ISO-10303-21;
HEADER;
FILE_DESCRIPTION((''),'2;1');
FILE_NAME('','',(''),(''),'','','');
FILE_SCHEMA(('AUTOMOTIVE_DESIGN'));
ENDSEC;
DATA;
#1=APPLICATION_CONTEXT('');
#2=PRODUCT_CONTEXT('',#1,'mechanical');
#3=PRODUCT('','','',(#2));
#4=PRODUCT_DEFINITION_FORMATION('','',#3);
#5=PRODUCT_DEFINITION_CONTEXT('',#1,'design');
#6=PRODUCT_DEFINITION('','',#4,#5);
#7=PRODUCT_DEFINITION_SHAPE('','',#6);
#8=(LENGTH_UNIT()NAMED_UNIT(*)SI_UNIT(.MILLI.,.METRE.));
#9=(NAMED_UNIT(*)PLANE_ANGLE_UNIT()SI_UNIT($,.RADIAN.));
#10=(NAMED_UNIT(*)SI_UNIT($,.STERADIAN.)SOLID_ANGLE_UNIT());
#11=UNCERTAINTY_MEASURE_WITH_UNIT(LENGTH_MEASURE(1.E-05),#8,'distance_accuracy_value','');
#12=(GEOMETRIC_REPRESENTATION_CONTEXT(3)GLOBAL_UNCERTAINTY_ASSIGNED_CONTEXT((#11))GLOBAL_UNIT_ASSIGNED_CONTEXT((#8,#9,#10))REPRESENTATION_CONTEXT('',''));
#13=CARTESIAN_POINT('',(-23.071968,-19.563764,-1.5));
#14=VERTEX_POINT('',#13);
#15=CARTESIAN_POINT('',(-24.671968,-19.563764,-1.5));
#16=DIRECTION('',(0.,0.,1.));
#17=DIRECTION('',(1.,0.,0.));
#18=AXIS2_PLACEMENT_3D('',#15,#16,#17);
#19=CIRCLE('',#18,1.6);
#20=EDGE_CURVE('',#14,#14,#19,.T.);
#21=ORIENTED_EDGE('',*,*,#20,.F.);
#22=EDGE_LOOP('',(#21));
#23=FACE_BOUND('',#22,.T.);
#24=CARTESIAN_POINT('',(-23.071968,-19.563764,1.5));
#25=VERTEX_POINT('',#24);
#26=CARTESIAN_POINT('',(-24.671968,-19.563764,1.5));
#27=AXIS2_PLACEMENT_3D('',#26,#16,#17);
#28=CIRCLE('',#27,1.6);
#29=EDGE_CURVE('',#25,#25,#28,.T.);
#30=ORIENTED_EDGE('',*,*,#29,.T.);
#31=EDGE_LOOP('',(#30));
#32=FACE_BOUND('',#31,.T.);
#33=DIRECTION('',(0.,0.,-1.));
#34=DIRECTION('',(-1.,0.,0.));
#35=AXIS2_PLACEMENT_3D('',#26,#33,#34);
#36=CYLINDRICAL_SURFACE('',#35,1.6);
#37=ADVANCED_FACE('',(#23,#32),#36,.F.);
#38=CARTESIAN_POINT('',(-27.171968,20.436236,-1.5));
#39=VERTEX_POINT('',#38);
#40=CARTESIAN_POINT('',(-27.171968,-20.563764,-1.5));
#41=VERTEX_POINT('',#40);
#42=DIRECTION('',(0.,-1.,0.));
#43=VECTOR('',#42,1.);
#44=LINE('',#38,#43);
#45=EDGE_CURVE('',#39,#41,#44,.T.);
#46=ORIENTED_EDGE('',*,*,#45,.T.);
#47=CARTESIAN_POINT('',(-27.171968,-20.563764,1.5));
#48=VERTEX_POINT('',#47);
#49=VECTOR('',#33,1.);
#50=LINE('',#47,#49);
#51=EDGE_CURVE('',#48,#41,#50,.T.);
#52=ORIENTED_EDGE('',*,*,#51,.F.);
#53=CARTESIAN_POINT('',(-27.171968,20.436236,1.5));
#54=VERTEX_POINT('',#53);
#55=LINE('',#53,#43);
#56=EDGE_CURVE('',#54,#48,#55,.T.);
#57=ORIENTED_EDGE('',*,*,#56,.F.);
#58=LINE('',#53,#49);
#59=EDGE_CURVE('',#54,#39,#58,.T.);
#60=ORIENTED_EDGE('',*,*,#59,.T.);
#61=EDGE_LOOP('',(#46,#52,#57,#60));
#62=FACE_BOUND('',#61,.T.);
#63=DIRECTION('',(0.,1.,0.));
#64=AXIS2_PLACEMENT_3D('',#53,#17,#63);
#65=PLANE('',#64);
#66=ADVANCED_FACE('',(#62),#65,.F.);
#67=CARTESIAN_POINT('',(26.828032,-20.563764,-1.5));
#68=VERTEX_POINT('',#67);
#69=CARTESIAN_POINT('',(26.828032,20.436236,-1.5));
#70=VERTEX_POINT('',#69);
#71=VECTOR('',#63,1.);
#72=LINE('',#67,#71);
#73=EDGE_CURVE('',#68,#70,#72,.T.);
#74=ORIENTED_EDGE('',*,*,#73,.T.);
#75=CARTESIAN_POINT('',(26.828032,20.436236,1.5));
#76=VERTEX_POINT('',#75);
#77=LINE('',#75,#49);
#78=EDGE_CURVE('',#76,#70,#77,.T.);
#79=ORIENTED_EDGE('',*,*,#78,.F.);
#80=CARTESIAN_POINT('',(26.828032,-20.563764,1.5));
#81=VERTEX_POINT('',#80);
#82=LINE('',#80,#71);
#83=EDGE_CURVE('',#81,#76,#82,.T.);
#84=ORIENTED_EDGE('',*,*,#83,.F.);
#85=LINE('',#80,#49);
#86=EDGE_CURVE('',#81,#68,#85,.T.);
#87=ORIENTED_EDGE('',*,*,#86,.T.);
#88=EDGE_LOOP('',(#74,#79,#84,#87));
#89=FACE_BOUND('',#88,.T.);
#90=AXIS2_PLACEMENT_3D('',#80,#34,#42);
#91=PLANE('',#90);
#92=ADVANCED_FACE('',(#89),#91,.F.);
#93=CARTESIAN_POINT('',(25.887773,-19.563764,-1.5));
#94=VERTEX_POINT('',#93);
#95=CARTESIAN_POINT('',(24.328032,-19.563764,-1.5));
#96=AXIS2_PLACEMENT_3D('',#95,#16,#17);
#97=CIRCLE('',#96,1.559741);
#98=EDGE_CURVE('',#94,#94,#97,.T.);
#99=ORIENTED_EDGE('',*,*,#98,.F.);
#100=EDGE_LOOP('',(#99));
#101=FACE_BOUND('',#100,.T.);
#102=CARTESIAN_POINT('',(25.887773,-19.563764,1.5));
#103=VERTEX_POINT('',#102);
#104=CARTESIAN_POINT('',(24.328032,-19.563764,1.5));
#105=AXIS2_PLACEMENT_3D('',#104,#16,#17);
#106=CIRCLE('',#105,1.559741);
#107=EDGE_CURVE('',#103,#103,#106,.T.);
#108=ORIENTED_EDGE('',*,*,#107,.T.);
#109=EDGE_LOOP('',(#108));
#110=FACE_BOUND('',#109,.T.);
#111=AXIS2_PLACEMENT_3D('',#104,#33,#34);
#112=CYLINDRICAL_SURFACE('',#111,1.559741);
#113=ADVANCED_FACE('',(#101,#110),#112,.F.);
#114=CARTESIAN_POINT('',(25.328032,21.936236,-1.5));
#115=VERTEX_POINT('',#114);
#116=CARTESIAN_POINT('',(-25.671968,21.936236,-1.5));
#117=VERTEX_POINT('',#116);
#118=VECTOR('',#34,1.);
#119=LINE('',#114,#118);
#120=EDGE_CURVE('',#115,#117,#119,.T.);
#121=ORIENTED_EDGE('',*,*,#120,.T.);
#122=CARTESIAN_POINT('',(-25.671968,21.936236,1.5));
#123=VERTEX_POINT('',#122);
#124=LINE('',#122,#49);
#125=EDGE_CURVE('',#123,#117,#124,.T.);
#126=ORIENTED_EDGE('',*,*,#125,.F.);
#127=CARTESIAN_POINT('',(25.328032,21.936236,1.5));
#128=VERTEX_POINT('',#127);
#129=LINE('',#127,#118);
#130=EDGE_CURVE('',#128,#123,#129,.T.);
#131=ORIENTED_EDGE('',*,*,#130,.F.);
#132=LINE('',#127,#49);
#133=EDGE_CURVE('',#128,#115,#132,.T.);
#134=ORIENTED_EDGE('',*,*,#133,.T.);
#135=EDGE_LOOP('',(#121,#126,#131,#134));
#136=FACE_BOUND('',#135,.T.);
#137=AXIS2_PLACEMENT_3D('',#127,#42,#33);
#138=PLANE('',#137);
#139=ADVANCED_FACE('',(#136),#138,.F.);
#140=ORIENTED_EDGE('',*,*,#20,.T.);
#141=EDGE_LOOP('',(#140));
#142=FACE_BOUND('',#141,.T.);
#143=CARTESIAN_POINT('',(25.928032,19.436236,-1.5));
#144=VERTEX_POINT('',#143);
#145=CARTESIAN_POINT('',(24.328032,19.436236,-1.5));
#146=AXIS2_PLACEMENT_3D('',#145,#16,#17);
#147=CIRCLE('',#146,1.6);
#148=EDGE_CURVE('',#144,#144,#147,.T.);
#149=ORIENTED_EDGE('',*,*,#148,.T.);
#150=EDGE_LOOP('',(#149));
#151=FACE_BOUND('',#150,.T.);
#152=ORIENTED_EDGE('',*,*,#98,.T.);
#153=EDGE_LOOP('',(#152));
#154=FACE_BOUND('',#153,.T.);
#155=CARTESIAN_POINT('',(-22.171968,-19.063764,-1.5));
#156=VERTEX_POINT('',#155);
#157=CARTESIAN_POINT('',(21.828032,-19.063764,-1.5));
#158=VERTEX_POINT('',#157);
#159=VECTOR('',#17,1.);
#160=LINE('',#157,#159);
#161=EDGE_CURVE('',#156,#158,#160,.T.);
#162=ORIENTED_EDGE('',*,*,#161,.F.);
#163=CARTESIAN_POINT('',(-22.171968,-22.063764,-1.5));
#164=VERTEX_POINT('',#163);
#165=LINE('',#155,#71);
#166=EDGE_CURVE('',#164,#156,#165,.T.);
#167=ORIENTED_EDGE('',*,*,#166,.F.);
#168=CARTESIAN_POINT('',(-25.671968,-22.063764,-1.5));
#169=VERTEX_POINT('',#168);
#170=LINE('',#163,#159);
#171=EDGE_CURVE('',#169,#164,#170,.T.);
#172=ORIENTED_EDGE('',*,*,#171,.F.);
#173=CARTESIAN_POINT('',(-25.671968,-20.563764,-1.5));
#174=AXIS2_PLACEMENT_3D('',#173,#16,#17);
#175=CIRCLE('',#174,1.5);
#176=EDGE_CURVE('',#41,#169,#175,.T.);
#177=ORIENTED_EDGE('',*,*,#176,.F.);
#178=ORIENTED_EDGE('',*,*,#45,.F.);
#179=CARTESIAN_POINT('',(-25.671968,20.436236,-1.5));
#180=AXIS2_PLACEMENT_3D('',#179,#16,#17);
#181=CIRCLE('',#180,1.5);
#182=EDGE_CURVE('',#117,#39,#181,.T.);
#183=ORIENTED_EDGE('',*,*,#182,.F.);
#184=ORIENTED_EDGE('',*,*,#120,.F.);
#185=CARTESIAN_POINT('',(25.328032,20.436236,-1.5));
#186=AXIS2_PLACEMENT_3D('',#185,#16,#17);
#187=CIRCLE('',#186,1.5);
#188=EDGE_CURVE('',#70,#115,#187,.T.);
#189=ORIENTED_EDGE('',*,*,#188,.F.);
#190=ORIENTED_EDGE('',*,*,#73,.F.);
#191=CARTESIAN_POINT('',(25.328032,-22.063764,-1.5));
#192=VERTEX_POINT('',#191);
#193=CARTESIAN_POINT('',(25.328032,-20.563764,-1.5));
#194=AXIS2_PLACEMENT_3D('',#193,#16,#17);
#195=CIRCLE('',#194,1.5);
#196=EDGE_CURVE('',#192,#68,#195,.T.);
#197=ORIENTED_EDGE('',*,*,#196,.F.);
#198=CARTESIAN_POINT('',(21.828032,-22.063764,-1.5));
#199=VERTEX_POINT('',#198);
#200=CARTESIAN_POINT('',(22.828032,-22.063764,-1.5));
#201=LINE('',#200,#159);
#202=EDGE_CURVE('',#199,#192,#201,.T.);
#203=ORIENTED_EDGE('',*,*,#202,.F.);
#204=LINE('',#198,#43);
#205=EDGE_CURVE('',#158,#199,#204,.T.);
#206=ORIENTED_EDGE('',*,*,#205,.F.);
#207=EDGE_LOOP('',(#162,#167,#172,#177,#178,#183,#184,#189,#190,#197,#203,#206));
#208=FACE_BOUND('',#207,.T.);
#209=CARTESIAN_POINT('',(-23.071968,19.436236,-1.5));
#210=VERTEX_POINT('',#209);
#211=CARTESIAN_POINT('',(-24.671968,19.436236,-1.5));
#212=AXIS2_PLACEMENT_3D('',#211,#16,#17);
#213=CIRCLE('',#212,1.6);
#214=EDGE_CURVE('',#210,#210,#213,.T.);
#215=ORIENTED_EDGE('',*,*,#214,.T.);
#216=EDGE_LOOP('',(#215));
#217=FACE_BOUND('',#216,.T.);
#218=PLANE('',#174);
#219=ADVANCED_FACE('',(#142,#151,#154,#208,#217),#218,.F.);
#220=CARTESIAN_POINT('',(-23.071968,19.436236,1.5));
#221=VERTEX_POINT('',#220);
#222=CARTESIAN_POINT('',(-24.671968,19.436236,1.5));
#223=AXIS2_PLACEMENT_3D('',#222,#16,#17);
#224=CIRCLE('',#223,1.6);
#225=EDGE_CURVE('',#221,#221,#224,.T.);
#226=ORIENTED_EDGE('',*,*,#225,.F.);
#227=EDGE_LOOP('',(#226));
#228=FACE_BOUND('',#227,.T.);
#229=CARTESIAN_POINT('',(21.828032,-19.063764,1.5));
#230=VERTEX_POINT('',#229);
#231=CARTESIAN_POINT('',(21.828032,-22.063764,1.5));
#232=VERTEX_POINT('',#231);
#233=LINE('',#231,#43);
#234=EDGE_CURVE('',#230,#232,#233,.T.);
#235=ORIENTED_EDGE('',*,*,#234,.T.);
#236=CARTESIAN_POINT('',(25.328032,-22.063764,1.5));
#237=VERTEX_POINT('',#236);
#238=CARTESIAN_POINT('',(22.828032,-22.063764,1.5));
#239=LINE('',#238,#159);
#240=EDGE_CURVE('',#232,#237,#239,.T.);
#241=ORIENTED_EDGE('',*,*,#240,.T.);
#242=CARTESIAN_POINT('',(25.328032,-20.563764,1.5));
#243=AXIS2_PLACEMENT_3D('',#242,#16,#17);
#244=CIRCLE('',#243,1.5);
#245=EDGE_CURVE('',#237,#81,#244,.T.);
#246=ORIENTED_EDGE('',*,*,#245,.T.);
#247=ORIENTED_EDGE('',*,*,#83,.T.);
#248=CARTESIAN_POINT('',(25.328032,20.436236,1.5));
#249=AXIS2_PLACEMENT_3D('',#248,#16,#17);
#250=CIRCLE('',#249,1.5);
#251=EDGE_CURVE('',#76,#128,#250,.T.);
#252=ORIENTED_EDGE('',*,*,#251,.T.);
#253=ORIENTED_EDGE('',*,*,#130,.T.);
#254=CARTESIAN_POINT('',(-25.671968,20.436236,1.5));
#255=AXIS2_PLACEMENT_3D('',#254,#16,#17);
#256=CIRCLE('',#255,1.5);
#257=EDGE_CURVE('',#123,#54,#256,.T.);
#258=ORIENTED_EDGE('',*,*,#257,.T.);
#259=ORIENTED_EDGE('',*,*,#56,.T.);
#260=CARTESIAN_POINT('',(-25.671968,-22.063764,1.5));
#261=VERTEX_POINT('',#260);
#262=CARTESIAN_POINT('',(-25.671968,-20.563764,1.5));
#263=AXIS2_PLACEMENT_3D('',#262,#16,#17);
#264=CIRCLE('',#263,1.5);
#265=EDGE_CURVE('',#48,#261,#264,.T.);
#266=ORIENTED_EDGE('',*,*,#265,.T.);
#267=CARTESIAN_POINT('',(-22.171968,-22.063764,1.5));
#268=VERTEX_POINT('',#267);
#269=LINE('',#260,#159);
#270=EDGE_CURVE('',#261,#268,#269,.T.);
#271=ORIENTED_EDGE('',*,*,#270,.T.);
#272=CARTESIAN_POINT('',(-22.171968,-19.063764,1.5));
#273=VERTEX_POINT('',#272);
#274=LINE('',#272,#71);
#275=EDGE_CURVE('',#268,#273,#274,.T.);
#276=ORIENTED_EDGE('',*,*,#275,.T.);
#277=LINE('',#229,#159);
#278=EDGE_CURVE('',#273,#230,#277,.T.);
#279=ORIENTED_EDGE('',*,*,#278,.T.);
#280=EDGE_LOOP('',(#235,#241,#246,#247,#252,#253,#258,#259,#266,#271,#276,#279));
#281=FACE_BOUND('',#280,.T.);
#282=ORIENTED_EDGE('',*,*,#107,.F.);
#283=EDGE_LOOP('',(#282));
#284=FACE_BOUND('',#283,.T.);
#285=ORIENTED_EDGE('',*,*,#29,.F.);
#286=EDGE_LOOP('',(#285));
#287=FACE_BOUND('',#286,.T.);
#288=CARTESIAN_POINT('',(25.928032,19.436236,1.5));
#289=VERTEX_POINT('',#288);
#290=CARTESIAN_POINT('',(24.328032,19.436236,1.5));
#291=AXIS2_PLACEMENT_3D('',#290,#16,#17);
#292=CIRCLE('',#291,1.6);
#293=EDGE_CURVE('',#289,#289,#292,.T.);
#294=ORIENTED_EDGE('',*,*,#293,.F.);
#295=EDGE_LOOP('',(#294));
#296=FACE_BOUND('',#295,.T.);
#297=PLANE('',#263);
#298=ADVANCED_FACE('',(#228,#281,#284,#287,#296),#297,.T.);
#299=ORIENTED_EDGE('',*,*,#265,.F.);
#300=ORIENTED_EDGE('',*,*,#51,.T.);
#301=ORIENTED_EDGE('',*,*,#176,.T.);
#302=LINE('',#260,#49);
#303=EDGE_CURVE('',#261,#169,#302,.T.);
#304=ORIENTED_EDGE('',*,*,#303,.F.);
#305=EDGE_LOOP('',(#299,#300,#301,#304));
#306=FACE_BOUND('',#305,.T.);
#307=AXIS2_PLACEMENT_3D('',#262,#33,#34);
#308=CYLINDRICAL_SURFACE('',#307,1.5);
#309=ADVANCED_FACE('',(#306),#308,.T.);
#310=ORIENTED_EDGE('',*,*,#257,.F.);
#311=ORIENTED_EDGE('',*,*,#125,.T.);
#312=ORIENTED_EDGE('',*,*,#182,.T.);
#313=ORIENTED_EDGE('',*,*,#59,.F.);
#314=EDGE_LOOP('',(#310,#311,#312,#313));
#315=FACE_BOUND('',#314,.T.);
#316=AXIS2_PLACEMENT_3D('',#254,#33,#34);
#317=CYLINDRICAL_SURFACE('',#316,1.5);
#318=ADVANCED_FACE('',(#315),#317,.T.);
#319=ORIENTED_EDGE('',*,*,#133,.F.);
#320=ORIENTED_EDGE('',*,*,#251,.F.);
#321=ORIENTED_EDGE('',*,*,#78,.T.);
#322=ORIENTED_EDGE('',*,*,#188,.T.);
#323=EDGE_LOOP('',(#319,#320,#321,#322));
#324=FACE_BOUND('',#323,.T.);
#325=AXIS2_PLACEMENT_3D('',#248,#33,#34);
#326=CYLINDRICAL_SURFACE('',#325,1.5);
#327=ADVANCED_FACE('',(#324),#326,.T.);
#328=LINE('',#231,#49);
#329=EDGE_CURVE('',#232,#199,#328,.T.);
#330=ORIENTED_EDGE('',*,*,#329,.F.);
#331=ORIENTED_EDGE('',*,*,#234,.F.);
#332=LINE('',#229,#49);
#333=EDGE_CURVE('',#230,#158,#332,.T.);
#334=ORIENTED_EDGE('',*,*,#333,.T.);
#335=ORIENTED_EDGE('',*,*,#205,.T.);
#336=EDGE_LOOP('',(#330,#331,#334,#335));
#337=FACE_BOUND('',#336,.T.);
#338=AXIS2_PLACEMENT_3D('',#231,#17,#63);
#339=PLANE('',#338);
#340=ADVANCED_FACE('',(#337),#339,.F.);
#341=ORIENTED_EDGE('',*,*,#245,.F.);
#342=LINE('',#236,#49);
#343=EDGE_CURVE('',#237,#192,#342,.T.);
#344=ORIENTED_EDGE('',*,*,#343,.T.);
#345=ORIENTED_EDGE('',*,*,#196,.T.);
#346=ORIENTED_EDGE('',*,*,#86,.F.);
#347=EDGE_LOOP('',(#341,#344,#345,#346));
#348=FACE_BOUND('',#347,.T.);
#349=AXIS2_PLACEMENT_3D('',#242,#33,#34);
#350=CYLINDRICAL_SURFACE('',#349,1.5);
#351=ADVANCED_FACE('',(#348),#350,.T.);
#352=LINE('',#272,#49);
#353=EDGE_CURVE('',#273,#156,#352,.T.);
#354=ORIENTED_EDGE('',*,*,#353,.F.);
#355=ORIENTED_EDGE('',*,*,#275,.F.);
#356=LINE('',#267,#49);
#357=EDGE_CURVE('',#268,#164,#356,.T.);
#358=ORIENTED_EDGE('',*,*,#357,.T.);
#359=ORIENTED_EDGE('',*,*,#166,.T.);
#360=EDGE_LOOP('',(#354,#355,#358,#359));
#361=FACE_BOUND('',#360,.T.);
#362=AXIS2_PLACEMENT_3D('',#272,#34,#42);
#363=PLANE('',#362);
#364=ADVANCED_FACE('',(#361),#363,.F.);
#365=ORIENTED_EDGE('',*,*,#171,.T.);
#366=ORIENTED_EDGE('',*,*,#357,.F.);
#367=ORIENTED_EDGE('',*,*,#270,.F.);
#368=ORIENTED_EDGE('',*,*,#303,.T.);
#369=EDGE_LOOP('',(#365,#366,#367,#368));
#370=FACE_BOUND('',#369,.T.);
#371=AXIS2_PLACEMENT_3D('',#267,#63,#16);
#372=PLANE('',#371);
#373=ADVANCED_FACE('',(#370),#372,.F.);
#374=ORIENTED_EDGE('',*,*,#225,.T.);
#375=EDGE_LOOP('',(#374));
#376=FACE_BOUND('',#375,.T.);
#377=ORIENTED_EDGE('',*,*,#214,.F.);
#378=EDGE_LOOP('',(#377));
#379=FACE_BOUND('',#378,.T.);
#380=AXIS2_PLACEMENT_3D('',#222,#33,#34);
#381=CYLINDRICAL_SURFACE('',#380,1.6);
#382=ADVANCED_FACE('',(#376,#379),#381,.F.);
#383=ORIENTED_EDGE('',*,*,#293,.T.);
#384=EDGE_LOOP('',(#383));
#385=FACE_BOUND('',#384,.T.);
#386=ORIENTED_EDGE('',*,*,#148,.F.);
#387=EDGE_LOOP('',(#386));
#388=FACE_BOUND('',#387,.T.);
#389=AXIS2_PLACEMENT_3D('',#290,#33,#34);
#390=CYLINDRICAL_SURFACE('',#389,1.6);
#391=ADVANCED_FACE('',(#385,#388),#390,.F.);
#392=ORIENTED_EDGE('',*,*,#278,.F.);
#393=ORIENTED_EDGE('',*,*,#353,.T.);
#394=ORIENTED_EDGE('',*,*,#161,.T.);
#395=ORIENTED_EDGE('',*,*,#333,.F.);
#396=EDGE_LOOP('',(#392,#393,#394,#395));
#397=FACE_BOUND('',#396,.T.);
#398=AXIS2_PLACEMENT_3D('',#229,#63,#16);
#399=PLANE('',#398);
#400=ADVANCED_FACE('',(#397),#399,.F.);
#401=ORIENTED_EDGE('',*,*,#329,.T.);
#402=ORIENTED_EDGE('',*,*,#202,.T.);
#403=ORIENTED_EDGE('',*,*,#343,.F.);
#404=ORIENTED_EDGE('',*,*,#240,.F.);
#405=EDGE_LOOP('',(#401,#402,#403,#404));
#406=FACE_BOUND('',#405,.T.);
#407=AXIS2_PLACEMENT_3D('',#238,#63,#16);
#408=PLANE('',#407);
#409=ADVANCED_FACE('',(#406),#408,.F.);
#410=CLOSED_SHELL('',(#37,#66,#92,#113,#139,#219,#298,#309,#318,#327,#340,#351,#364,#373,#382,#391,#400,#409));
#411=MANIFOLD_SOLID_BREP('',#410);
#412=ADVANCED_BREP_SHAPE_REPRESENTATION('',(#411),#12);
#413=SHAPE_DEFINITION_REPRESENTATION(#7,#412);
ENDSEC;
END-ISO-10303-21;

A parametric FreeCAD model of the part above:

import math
import FreeCAD as App
import Part
import Sketcher
from FreeCAD import Vector
Q = App.Units.Quantity

doc = App.newDocument("Part")
params = doc.addObject("Spreadsheet::Sheet", "Params")
for row, (alias, value) in enumerate([
    ("sketch1_diameter", "3.2 mm"),
    ("sketch1_radius", "1.5 mm"),
    ("sketch1_width", "51 mm"),
    ("sketch1_width2", "44 mm"),
    ("sketch1_height", "3 mm"),
    ("pad1_length", "3 mm"),
], start=1):
    params.set(f"A{row}", alias)
    params.set(f"B{row}", "=" + value)
    params.setAlias(f"B{row}", alias)

body = doc.addObject("PartDesign::Body", "Body")

sketch1 = body.newObject("Sketcher::SketchObject", "Sketch")
sketch1.AttachmentSupport = (doc.getObject("XY_Plane"), [""])
sketch1.MapMode = "FlatFace"
sketch1.addGeometry([
    Part.LineSegment(Vector(21.828032, -19.063764, 0), Vector(21.828032, -22.063764, 0)),
    Part.LineSegment(Vector(21.828032, -22.063764, 0), Vector(25.328032, -22.063764, 0)),
    Part.ArcOfCircle(Part.Circle(Vector(25.328032, -20.563764, 0), Vector(0, 0, 1), 1.5), math.radians(-90), math.radians(0)),
    Part.LineSegment(Vector(26.828032, -20.563764, 0), Vector(26.828032, 20.436236, 0)),
    Part.ArcOfCircle(Part.Circle(Vector(25.328032, 20.436236, 0), Vector(0, 0, 1), 1.5), math.radians(0), math.radians(90)),
    Part.LineSegment(Vector(25.328032, 21.936236, 0), Vector(-25.671968, 21.936236, 0)),
    Part.ArcOfCircle(Part.Circle(Vector(-25.671968, 20.436236, 0), Vector(0, 0, 1), 1.5), math.radians(90), math.radians(180)),
    Part.LineSegment(Vector(-27.171968, 20.436236, 0), Vector(-27.171968, -20.563764, 0)),
    Part.ArcOfCircle(Part.Circle(Vector(-25.671968, -20.563764, 0), Vector(0, 0, 1), 1.5), math.radians(180), math.radians(270)),
    Part.LineSegment(Vector(-25.671968, -22.063764, 0), Vector(-22.171968, -22.063764, 0)),
    Part.LineSegment(Vector(-22.171968, -22.063764, 0), Vector(-22.171968, -19.063764, 0)),
    Part.LineSegment(Vector(-22.171968, -19.063764, 0), Vector(21.828032, -19.063764, 0)),
    Part.Circle(Vector(24.328032, -19.563764, 0), Vector(0, 0, 1), 1.559741),
    Part.Circle(Vector(-24.671968, -19.563764, 0), Vector(0, 0, 1), 1.6),
    Part.Circle(Vector(24.328032, 19.436236, 0), Vector(0, 0, 1), 1.6),
    Part.Circle(Vector(-24.671968, 19.436236, 0), Vector(0, 0, 1), 1.6),
], False)
sketch1.addConstraint([
    Sketcher.Constraint("Coincident", 0, 2, 1, 1),
    Sketcher.Constraint("Tangent", 1, 2, 2, 1),
    Sketcher.Constraint("Tangent", 2, 2, 3, 1),
    Sketcher.Constraint("Tangent", 3, 2, 4, 1),
    Sketcher.Constraint("Tangent", 4, 2, 5, 1),
    Sketcher.Constraint("Tangent", 5, 2, 6, 1),
    Sketcher.Constraint("Tangent", 6, 2, 7, 1),
    Sketcher.Constraint("Tangent", 7, 2, 8, 1),
    Sketcher.Constraint("Tangent", 8, 2, 9, 1),
    Sketcher.Constraint("Coincident", 9, 2, 10, 1),
    Sketcher.Constraint("Coincident", 10, 2, 11, 1),
    Sketcher.Constraint("Coincident", 11, 2, 0, 1),
    Sketcher.Constraint("Vertical", 0),
    Sketcher.Constraint("Horizontal", 1),
    Sketcher.Constraint("Vertical", 3),
    Sketcher.Constraint("Horizontal", 5),
    Sketcher.Constraint("Vertical", 7),
    Sketcher.Constraint("Horizontal", 9),
    Sketcher.Constraint("Vertical", 10),
    Sketcher.Constraint("Horizontal", 11),
    Sketcher.Constraint("Equal", 2, 4),
    Sketcher.Constraint("Equal", 4, 6),
    Sketcher.Constraint("Equal", 6, 8),
    Sketcher.Constraint("Equal", 13, 14),
    Sketcher.Constraint("Equal", 14, 15),
    Sketcher.Constraint("Horizontal", 2, 3, 8, 3),
    Sketcher.Constraint("Horizontal", 12, 3, 13, 3),
    Sketcher.Constraint("Horizontal", 14, 3, 15, 3),
    Sketcher.Constraint("Vertical", 12, 3, 14, 3),
    Sketcher.Constraint("Vertical", 13, 3, 15, 3),
    Sketcher.Constraint("Equal", 1, 9),
    Sketcher.Constraint("Diameter", 13, Q("3.2 mm")),
    Sketcher.Constraint("Radius", 2, Q("1.5 mm")),
    Sketcher.Constraint("DistanceX", 5, 2, 5, 1, Q("51 mm")),
    Sketcher.Constraint("DistanceX", 11, 1, 11, 2, Q("44 mm")),
    Sketcher.Constraint("DistanceY", 0, 2, 0, 1, Q("3 mm")),
    Sketcher.Constraint("DistanceY", 3, 1, 3, 2, Q("41 mm")),
    Sketcher.Constraint("DistanceX", 12, 3, 2, 3, Q("1 mm")),
    Sketcher.Constraint("DistanceY", 2, 3, 12, 3, Q("1 mm")),
    Sketcher.Constraint("DistanceX", 8, 3, 13, 3, Q("1 mm")),
    Sketcher.Constraint("DistanceY", 14, 3, 4, 3, Q("1 mm")),
    Sketcher.Constraint("Diameter", 12, Q("3.119482 mm")),
    Sketcher.Constraint("DistanceX", -1, 1, 2, 3, Q("25.328032 mm")),
    Sketcher.Constraint("DistanceY", 2, 3, -1, 1, Q("20.563764 mm")),
])
sketch1.setExpression("Constraints[31]", "Params.sketch1_diameter")
sketch1.setExpression("Constraints[32]", "Params.sketch1_radius")
sketch1.setExpression("Constraints[33]", "Params.sketch1_width")
sketch1.setExpression("Constraints[34]", "Params.sketch1_width2")
sketch1.setExpression("Constraints[35]", "Params.sketch1_height")
pad1 = body.newObject("PartDesign::Pad", "Pad")
pad1.Profile = sketch1
pad1.setExpression("Length", "Params.pad1_length")
pad1.Midplane = True

doc.recompute()
